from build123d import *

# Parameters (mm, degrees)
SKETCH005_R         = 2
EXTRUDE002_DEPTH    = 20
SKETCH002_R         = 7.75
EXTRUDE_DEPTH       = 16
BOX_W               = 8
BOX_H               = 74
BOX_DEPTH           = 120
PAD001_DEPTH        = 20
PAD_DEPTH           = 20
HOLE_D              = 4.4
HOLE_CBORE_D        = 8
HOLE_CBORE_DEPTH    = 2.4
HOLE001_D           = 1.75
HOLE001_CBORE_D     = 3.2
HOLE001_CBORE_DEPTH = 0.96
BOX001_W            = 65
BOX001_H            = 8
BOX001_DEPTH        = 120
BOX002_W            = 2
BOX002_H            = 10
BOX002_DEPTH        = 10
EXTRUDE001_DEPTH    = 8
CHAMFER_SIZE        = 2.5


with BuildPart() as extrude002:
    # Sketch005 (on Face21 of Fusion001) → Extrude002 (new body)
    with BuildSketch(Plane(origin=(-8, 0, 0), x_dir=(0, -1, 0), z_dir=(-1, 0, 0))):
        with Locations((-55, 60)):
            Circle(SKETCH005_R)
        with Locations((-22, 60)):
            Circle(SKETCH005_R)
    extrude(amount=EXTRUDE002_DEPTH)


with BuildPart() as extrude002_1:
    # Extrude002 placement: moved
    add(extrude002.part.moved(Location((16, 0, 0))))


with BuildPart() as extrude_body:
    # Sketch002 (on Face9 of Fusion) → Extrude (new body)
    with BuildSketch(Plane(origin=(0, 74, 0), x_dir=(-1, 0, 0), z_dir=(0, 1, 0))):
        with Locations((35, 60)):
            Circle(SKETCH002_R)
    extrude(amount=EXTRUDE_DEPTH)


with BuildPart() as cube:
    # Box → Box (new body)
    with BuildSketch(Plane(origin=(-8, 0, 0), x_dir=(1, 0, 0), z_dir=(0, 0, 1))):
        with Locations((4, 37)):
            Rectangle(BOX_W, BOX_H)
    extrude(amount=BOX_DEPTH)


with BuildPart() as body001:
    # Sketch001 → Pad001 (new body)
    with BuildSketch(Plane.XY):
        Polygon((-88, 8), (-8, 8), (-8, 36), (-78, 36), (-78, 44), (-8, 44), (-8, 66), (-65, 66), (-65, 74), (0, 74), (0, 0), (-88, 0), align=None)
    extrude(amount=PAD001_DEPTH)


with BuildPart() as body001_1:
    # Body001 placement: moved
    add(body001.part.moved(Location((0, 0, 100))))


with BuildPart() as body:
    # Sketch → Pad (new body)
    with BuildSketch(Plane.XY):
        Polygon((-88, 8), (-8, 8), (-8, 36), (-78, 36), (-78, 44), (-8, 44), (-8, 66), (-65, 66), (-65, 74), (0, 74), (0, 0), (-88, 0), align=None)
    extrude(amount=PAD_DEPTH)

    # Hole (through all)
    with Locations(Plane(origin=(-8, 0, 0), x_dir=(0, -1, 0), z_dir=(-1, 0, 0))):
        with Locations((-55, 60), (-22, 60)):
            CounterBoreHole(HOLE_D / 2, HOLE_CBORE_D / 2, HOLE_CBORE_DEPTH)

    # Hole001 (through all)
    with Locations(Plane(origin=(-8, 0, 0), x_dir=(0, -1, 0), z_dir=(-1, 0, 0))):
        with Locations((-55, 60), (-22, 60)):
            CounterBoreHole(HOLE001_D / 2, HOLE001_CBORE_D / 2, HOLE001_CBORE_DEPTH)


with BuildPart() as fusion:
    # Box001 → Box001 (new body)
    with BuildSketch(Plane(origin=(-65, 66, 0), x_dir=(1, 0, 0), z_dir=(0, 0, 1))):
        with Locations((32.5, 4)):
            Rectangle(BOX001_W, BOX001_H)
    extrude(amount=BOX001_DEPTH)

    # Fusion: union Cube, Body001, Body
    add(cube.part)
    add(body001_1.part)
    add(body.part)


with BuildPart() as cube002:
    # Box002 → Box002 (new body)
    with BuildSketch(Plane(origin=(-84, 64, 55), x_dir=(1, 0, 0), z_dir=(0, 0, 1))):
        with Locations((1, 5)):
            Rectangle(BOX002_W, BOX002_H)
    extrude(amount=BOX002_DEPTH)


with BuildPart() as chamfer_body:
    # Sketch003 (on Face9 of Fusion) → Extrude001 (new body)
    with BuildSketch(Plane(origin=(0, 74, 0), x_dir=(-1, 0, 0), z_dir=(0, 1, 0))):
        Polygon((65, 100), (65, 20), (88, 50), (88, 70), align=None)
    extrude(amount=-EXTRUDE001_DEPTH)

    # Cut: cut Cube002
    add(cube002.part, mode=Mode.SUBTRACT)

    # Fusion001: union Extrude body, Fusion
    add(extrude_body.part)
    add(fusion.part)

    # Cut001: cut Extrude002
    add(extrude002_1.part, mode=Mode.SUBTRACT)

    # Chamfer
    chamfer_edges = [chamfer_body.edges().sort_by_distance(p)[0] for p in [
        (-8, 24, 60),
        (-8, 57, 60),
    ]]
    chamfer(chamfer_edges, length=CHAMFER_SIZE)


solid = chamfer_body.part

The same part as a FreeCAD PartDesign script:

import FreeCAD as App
import Part
import Sketcher

V = App.Vector


def edges_at(feature, points):
    """Names of the edges that pass closest to the given points."""
    edges = feature.Shape.Edges
    near = lambda p: min(range(len(edges)), key=lambda i: edges[i].distToShape(Part.Vertex(*p))[0])
    return sorted({f"Edge{near(p) + 1}" for p in points})

doc = App.newDocument("Part")
body = doc.addObject("PartDesign::Body", "Body")
body.AllowCompound = True

sketch1 = body.newObject("Sketcher::SketchObject", "Sketch")
sketch1.AttachmentSupport = (doc.getObject("YZ_Plane"), [""])
sketch1.MapMode = "FlatFace"
sketch1.AttachmentOffset = App.Placement(V(0, 0, -8), App.Rotation())
sketch1.addGeometry(Part.Circle(V(55, 60, 0), V(0, 0, 1), 2), False)
sketch1.addGeometry(Part.Circle(V(22, 60, 0), V(0, 0, 1), 2), False)
sketch1.addConstraint(Sketcher.Constraint("Equal", 0, 1))
sketch1.addConstraint(Sketcher.Constraint("Horizontal", 0, 3, 1, 3))
sketch1.addConstraint(Sketcher.Constraint("Diameter", 0, 4.0))
sketch1.addConstraint(Sketcher.Constraint("DistanceX", -1, 1, 0, 3, 55.0))
sketch1.addConstraint(Sketcher.Constraint("DistanceY", -1, 1, 0, 3, 60.0))
sketch1.addConstraint(Sketcher.Constraint("DistanceX", -1, 1, 1, 3, 22.0))
pad1 = body.newObject("PartDesign::Pad", "Pad")
pad1.Profile = sketch1
pad1.Length = 20
pad1.Reversed = True
body2 = doc.addObject("PartDesign::Body", "Body001")
body2.AllowCompound = True
doc.recompute()

body.Placement = App.Placement(V(16, 0, 0), App.Rotation(V(0, 0, 1), 0))
boolean = body2.newObject("PartDesign::Boolean", "Boolean")
boolean.Type = "Fuse"
boolean.addObjects([body])
body3 = doc.addObject("PartDesign::Body", "Body002")

sketch2 = body3.newObject("Sketcher::SketchObject", "Sketch001")
sketch2.AttachmentSupport = (doc.getObject("XZ_Plane002"), [""])
sketch2.MapMode = "FlatFace"
sketch2.AttachmentOffset = App.Placement(V(0, 0, -74), App.Rotation())
sketch2.addGeometry(Part.Circle(V(-35, 60, 0), V(0, 0, 1), 8), False)
sketch2.addConstraint(Sketcher.Constraint("Diameter", 0, 15.5))
sketch2.addConstraint(Sketcher.Constraint("DistanceX", 0, 3, -1, 1, 35.0))
sketch2.addConstraint(Sketcher.Constraint("DistanceY", -1, 1, 0, 3, 60.0))
pad2 = body3.newObject("PartDesign::Pad", "Pad001")
pad2.Profile = sketch2
pad2.Length = 16
pad2.Reversed = True
body4 = doc.addObject("PartDesign::Body", "Body003")

sketch3 = body4.newObject("Sketcher::SketchObject", "Sketch002")
sketch3.AttachmentSupport = (doc.getObject("XY_Plane003"), [""])
sketch3.MapMode = "FlatFace"
sketch3.addGeometry(Part.LineSegment(V(-8, 74, 0), V(-8, 0, 0)), False)
sketch3.addGeometry(Part.LineSegment(V(-8, 0, 0), V(0, 0, 0)), False)
sketch3.addGeometry(Part.LineSegment(V(0, 0, 0), V(0, 74, 0)), False)
sketch3.addGeometry(Part.LineSegment(V(0, 74, 0), V(-8, 74, 0)), False)
sketch3.addConstraint(Sketcher.Constraint("Coincident", 0, 2, 1, 1))
sketch3.addConstraint(Sketcher.Constraint("Coincident", 1, 2, 2, 1))
sketch3.addConstraint(Sketcher.Constraint("Coincident", 2, 2, 3, 1))
sketch3.addConstraint(Sketcher.Constraint("Coincident", 3, 2, 0, 1))
sketch3.addConstraint(Sketcher.Constraint("Vertical", 0))
sketch3.addConstraint(Sketcher.Constraint("Horizontal", 1))
sketch3.addConstraint(Sketcher.Constraint("Vertical", 2))
sketch3.addConstraint(Sketcher.Constraint("Horizontal", 3))
sketch3.addConstraint(Sketcher.Constraint("Coincident", 1, 2, -1, 1))
sketch3.addConstraint(Sketcher.Constraint("DistanceX", 1, 1, 1, 2, 8.0))
sketch3.addConstraint(Sketcher.Constraint("DistanceY", 0, 2, 0, 1, 74.0))
pad3 = body4.newObject("PartDesign::Pad", "Pad002")
pad3.Profile = sketch3
pad3.Length = 120
body5 = doc.addObject("PartDesign::Body", "Body004")

sketch4 = body5.newObject("Sketcher::SketchObject", "Sketch003")
sketch4.AttachmentSupport = (doc.getObject("XY_Plane004"), [""])
sketch4.MapMode = "FlatFace"
sketch4.addGeometry(Part.LineSegment(V(-8, 8, 0), V(-88, 8, 0)), False)
sketch4.addGeometry(Part.LineSegment(V(-88, 8, 0), V(-88, 0, 0)), False)
sketch4.addGeometry(Part.LineSegment(V(-88, 0, 0), V(0, 0, 0)), False)
sketch4.addGeometry(Part.LineSegment(V(0, 0, 0), V(0, 74, 0)), False)
sketch4.addGeometry(Part.LineSegment(V(0, 74, 0), V(-65, 74, 0)), False)
sketch4.addGeometry(Part.LineSegment(V(-65, 74, 0), V(-65, 66, 0)), False)
sketch4.addGeometry(Part.LineSegment(V(-65, 66, 0), V(-8, 66, 0)), False)
sketch4.addGeometry(Part.LineSegment(V(-8, 66, 0), V(-8, 44, 0)), False)
sketch4.addGeometry(Part.LineSegment(V(-8, 44, 0), V(-78, 44, 0)), False)
sketch4.addGeometry(Part.LineSegment(V(-78, 44, 0), V(-78, 36, 0)), False)
sketch4.addGeometry(Part.LineSegment(V(-78, 36, 0), V(-8, 36, 0)), False)
sketch4.addGeometry(Part.LineSegment(V(-8, 36, 0), V(-8, 8, 0)), False)
sketch4.addConstraint(Sketcher.Constraint("Coincident", 0, 2, 1, 1))
sketch4.addConstraint(Sketcher.Constraint("Coincident", 1, 2, 2, 1))
sketch4.addConstraint(Sketcher.Constraint("Coincident", 2, 2, 3, 1))
sketch4.addConstraint(Sketcher.Constraint("Coincident", 3, 2, 4, 1))
sketch4.addConstraint(Sketcher.Constraint("Coincident", 4, 2, 5, 1))
sketch4.addConstraint(Sketcher.Constraint("Coincident", 5, 2, 6, 1))
sketch4.addConstraint(Sketcher.Constraint("Coincident", 6, 2, 7, 1))
sketch4.addConstraint(Sketcher.Constraint("Coincident", 7, 2, 8, 1))
sketch4.addConstraint(Sketcher.Constraint("Coincident", 8, 2, 9, 1))
sketch4.addConstraint(Sketcher.Constraint("Coincident", 9, 2, 10, 1))
sketch4.addConstraint(Sketcher.Constraint("Coincident", 10, 2, 11, 1))
sketch4.addConstraint(Sketcher.Constraint("Coincident", 11, 2, 0, 1))
sketch4.addConstraint(Sketcher.Constraint("Horizontal", 0))
sketch4.addConstraint(Sketcher.Constraint("Vertical", 1))
sketch4.addConstraint(Sketcher.Constraint("Horizontal", 2))
sketch4.addConstraint(Sketcher.Constraint("Vertical", 3))
sketch4.addConstraint(Sketcher.Constraint("Horizontal", 4))
sketch4.addConstraint(Sketcher.Constraint("Vertical", 5))
sketch4.addConstraint(Sketcher.Constraint("Horizontal", 6))
sketch4.addConstraint(Sketcher.Constraint("Vertical", 7))
sketch4.addConstraint(Sketcher.Constraint("Horizontal", 8))
sketch4.addConstraint(Sketcher.Constraint("Vertical", 9))
sketch4.addConstraint(Sketcher.Constraint("Horizontal", 10))
sketch4.addConstraint(Sketcher.Constraint("Vertical", 11))
sketch4.addConstraint(Sketcher.Constraint("Coincident", 2, 2, -1, 1))
sketch4.addConstraint(Sketcher.Constraint("Vertical", 7, 2, 10, 2))
sketch4.addConstraint(Sketcher.Constraint("Equal", 1, 5))
sketch4.addConstraint(Sketcher.Constraint("Equal", 5, 9))
sketch4.addConstraint(Sketcher.Constraint("DistanceX", 0, 2, 0, 1, 80.0))
sketch4.addConstraint(Sketcher.Constraint("DistanceX", 2, 1, 2, 2, 88.0))
sketch4.addConstraint(Sketcher.Constraint("DistanceX", 4, 2, 4, 1, 65.0))
sketch4.addConstraint(Sketcher.Constraint("DistanceX", 8, 2, 8, 1, 70.0))
sketch4.addConstraint(Sketcher.Constraint("DistanceY", 1, 2, 1, 1, 8.0))
sketch4.addConstraint(Sketcher.Constraint("DistanceY", 3, 1, 3, 2, 74.0))
sketch4.addConstraint(Sketcher.Constraint("DistanceY", 7, 2, 7, 1, 22.0))
pad4 = body5.newObject("PartDesign::Pad", "Pad003")
pad4.Profile = sketch4
pad4.Length = 20
body6 = doc.addObject("PartDesign::Body", "Body005")
doc.recompute()

body5.Placement = App.Placement(V(0, 0, 100), App.Rotation(V(0, 0, 1), 0))
boolean2 = body6.newObject("PartDesign::Boolean", "Boolean001")
boolean2.Type = "Fuse"
boolean2.addObjects([body5])
body7 = doc.addObject("PartDesign::Body", "Body006")

sketch5 = body7.newObject("Sketcher::SketchObject", "Sketch004")
sketch5.AttachmentSupport = (doc.getObject("XY_Plane006"), [""])
sketch5.MapMode = "FlatFace"
sketch5.addGeometry(Part.LineSegment(V(-8, 8, 0), V(-88, 8, 0)), False)
sketch5.addGeometry(Part.LineSegment(V(-88, 8, 0), V(-88, 0, 0)), False)
sketch5.addGeometry(Part.LineSegment(V(-88, 0, 0), V(0, 0, 0)), False)
sketch5.addGeometry(Part.LineSegment(V(0, 0, 0), V(0, 74, 0)), False)
sketch5.addGeometry(Part.LineSegment(V(0, 74, 0), V(-65, 74, 0)), False)
sketch5.addGeometry(Part.LineSegment(V(-65, 74, 0), V(-65, 66, 0)), False)
sketch5.addGeometry(Part.LineSegment(V(-65, 66, 0), V(-8, 66, 0)), False)
sketch5.addGeometry(Part.LineSegment(V(-8, 66, 0), V(-8, 44, 0)), False)
sketch5.addGeometry(Part.LineSegment(V(-8, 44, 0), V(-78, 44, 0)), False)
sketch5.addGeometry(Part.LineSegment(V(-78, 44, 0), V(-78, 36, 0)), False)
sketch5.addGeometry(Part.LineSegment(V(-78, 36, 0), V(-8, 36, 0)), False)
sketch5.addGeometry(Part.LineSegment(V(-8, 36, 0), V(-8, 8, 0)), False)
sketch5.addConstraint(Sketcher.Constraint("Coincident", 0, 2, 1, 1))
sketch5.addConstraint(Sketcher.Constraint("Coincident", 1, 2, 2, 1))
sketch5.addConstraint(Sketcher.Constraint("Coincident", 2, 2, 3, 1))
sketch5.addConstraint(Sketcher.Constraint("Coincident", 3, 2, 4, 1))
sketch5.addConstraint(Sketcher.Constraint("Coincident", 4, 2, 5, 1))
sketch5.addConstraint(Sketcher.Constraint("Coincident", 5, 2, 6, 1))
sketch5.addConstraint(Sketcher.Constraint("Coincident", 6, 2, 7, 1))
sketch5.addConstraint(Sketcher.Constraint("Coincident", 7, 2, 8, 1))
sketch5.addConstraint(Sketcher.Constraint("Coincident", 8, 2, 9, 1))
sketch5.addConstraint(Sketcher.Constraint("Coincident", 9, 2, 10, 1))
sketch5.addConstraint(Sketcher.Constraint("Coincident", 10, 2, 11, 1))
sketch5.addConstraint(Sketcher.Constraint("Coincident", 11, 2, 0, 1))
sketch5.addConstraint(Sketcher.Constraint("Horizontal", 0))
sketch5.addConstraint(Sketcher.Constraint("Vertical", 1))
sketch5.addConstraint(Sketcher.Constraint("Horizontal", 2))
sketch5.addConstraint(Sketcher.Constraint("Vertical", 3))
sketch5.addConstraint(Sketcher.Constraint("Horizontal", 4))
sketch5.addConstraint(Sketcher.Constraint("Vertical", 5))
sketch5.addConstraint(Sketcher.Constraint("Horizontal", 6))
sketch5.addConstraint(Sketcher.Constraint("Vertical", 7))
sketch5.addConstraint(Sketcher.Constraint("Horizontal", 8))
sketch5.addConstraint(Sketcher.Constraint("Vertical", 9))
sketch5.addConstraint(Sketcher.Constraint("Horizontal", 10))
sketch5.addConstraint(Sketcher.Constraint("Vertical", 11))
sketch5.addConstraint(Sketcher.Constraint("Coincident", 2, 2, -1, 1))
sketch5.addConstraint(Sketcher.Constraint("Vertical", 7, 2, 10, 2))
sketch5.addConstraint(Sketcher.Constraint("Equal", 1, 5))
sketch5.addConstraint(Sketcher.Constraint("Equal", 5, 9))
sketch5.addConstraint(Sketcher.Constraint("DistanceX", 0, 2, 0, 1, 80.0))
sketch5.addConstraint(Sketcher.Constraint("DistanceX", 2, 1, 2, 2, 88.0))
sketch5.addConstraint(Sketcher.Constraint("DistanceX", 4, 2, 4, 1, 65.0))
sketch5.addConstraint(Sketcher.Constraint("DistanceX", 8, 2, 8, 1, 70.0))
sketch5.addConstraint(Sketcher.Constraint("DistanceY", 1, 2, 1, 1, 8.0))
sketch5.addConstraint(Sketcher.Constraint("DistanceY", 3, 1, 3, 2, 74.0))
sketch5.addConstraint(Sketcher.Constraint("DistanceY", 7, 2, 7, 1, 22.0))
pad5 = body7.newObject("PartDesign::Pad", "Pad004")
pad5.Profile = sketch5
pad5.Length = 20

sketch6 = body7.newObject("Sketcher::SketchObject", "Sketch005")
sketch6.AttachmentSupport = (doc.getObject("YZ_Plane006"), [""])
sketch6.MapMode = "FlatFace"
sketch6.AttachmentOffset = App.Placement(V(0, 0, -8), App.Rotation())
sketch6.addGeometry(Part.Circle(V(55, 60, 0), V(0, 0, 1), 2.2), False)
sketch6.addGeometry(Part.Circle(V(22, 60, 0), V(0, 0, 1), 2.2), False)
sketch6.addConstraint(Sketcher.Constraint("Equal", 0, 1))
sketch6.addConstraint(Sketcher.Constraint("Horizontal", 0, 3, 1, 3))
sketch6.addConstraint(Sketcher.Constraint("Diameter", 0, 4.4))
sketch6.addConstraint(Sketcher.Constraint("DistanceX", -1, 1, 0, 3, 55.0))
sketch6.addConstraint(Sketcher.Constraint("DistanceY", -1, 1, 0, 3, 60.0))
sketch6.addConstraint(Sketcher.Constraint("DistanceX", -1, 1, 1, 3, 22.0))
doc.recompute()
hole = body7.newObject("PartDesign::Hole", "Hole")
hole.Profile = sketch6
hole.ThreadType = "None"
hole.Diameter = 4.4
hole.DepthType = "ThroughAll"
hole.HoleCutType = "Counterbore"
hole.HoleCutDiameter = 8
hole.HoleCutDepth = 2.4
hole.Reversed = True

sketch7 = body7.newObject("Sketcher::SketchObject", "Sketch006")
sketch7.AttachmentSupport = (doc.getObject("YZ_Plane006"), [""])
sketch7.MapMode = "FlatFace"
sketch7.AttachmentOffset = App.Placement(V(0, 0, -8), App.Rotation())
sketch7.addGeometry(Part.Circle(V(55, 60, 0), V(0, 0, 1), 0.9), False)
sketch7.addGeometry(Part.Circle(V(22, 60, 0), V(0, 0, 1), 0.9), False)
sketch7.addConstraint(Sketcher.Constraint("Equal", 0, 1))
sketch7.addConstraint(Sketcher.Constraint("Horizontal", 0, 3, 1, 3))
sketch7.addConstraint(Sketcher.Constraint("Diameter", 0, 1.75))
sketch7.addConstraint(Sketcher.Constraint("DistanceX", -1, 1, 0, 3, 55.0))
sketch7.addConstraint(Sketcher.Constraint("DistanceY", -1, 1, 0, 3, 60.0))
sketch7.addConstraint(Sketcher.Constraint("DistanceX", -1, 1, 1, 3, 22.0))
doc.recompute()
hole2 = body7.newObject("PartDesign::Hole", "Hole001")
hole2.Profile = sketch7
hole2.ThreadType = "None"
hole2.Diameter = 1.75
hole2.DepthType = "ThroughAll"
hole2.HoleCutType = "Counterbore"
hole2.HoleCutDiameter = 3.2
hole2.HoleCutDepth = 0.96
hole2.Reversed = True
body8 = doc.addObject("PartDesign::Body", "Body007")

sketch8 = body8.newObject("Sketcher::SketchObject", "Sketch007")
sketch8.AttachmentSupport = (doc.getObject("XY_Plane007"), [""])
sketch8.MapMode = "FlatFace"
sketch8.addGeometry(Part.LineSegment(V(-65, 74, 0), V(-65, 66, 0)), False)
sketch8.addGeometry(Part.LineSegment(V(-65, 66, 0), V(0, 66, 0)), False)
sketch8.addGeometry(Part.LineSegment(V(0, 66, 0), V(0, 74, 0)), False)
sketch8.addGeometry(Part.LineSegment(V(0, 74, 0), V(-65, 74, 0)), False)
sketch8.addConstraint(Sketcher.Constraint("Coincident", 0, 2, 1, 1))
sketch8.addConstraint(Sketcher.Constraint("Coincident", 1, 2, 2, 1))
sketch8.addConstraint(Sketcher.Constraint("Coincident", 2, 2, 3, 1))
sketch8.addConstraint(Sketcher.Constraint("Coincident", 3, 2, 0, 1))
sketch8.addConstraint(Sketcher.Constraint("Vertical", 0))
sketch8.addConstraint(Sketcher.Constraint("Horizontal", 1))
sketch8.addConstraint(Sketcher.Constraint("Vertical", 2))
sketch8.addConstraint(Sketcher.Constraint("Horizontal", 3))
sketch8.addConstraint(Sketcher.Constraint("PointOnObject", 1, 2, -2))
sketch8.addConstraint(Sketcher.Constraint("DistanceX", 1, 1, 1, 2, 65.0))
sketch8.addConstraint(Sketcher.Constraint("DistanceY", 0, 2, 0, 1, 8.0))
sketch8.addConstraint(Sketcher.Constraint("DistanceY", -1, 1, 0, 2, 66.0))
pad6 = body8.newObject("PartDesign::Pad", "Pad005")
pad6.Profile = sketch8
pad6.Length = 120
doc.recompute()

boolean3 = body8.newObject("PartDesign::Boolean", "Boolean002")
boolean3.Type = "Fuse"
boolean3.addObjects([body4])
doc.recompute()

boolean4 = body8.newObject("PartDesign::Boolean", "Boolean003")
boolean4.Type = "Fuse"
boolean4.addObjects([body6])
doc.recompute()

boolean5 = body8.newObject("PartDesign::Boolean", "Boolean004")
boolean5.Type = "Fuse"
boolean5.addObjects([body7])
body9 = doc.addObject("PartDesign::Body", "Body008")

sketch9 = body9.newObject("Sketcher::SketchObject", "Sketch008")
sketch9.AttachmentSupport = (doc.getObject("XY_Plane008"), [""])
sketch9.MapMode = "FlatFace"
sketch9.AttachmentOffset = App.Placement(V(0, 0, 55), App.Rotation())
sketch9.addGeometry(Part.LineSegment(V(-84, 74, 0), V(-84, 64, 0)), False)
sketch9.addGeometry(Part.LineSegment(V(-84, 64, 0), V(-82, 64, 0)), False)
sketch9.addGeometry(Part.LineSegment(V(-82, 64, 0), V(-82, 74, 0)), False)
sketch9.addGeometry(Part.LineSegment(V(-82, 74, 0), V(-84, 74, 0)), False)
sketch9.addConstraint(Sketcher.Constraint("Coincident", 0, 2, 1, 1))
sketch9.addConstraint(Sketcher.Constraint("Coincident", 1, 2, 2, 1))
sketch9.addConstraint(Sketcher.Constraint("Coincident", 2, 2, 3, 1))
sketch9.addConstraint(Sketcher.Constraint("Coincident", 3, 2, 0, 1))
sketch9.addConstraint(Sketcher.Constraint("Vertical", 0))
sketch9.addConstraint(Sketcher.Constraint("Horizontal", 1))
sketch9.addConstraint(Sketcher.Constraint("Vertical", 2))
sketch9.addConstraint(Sketcher.Constraint("Horizontal", 3))
sketch9.addConstraint(Sketcher.Constraint("DistanceX", 1, 1, 1, 2, 2.0))
sketch9.addConstraint(Sketcher.Constraint("DistanceY", 0, 2, 0, 1, 10.0))
sketch9.addConstraint(Sketcher.Constraint("DistanceX", 0, 2, -1, 1, 84.0))
sketch9.addConstraint(Sketcher.Constraint("DistanceY", -1, 1, 0, 2, 64.0))
pad7 = body9.newObject("PartDesign::Pad", "Pad006")
pad7.Profile = sketch9
pad7.Length = 10
body10 = doc.addObject("PartDesign::Body", "Body009")
body10.AllowCompound = True

sketch10 = body10.newObject("Sketcher::SketchObject", "Sketch009")
sketch10.AttachmentSupport = (doc.getObject("XZ_Plane009"), [""])
sketch10.MapMode = "FlatFace"
sketch10.AttachmentOffset = App.Placement(V(0, 0, -74), App.Rotation())
sketch10.addGeometry(Part.LineSegment(V(-65, 100, 0), V(-65, 20, 0)), False)
sketch10.addGeometry(Part.LineSegment(V(-65, 20, 0), V(-88, 50, 0)), False)
sketch10.addGeometry(Part.LineSegment(V(-88, 50, 0), V(-88, 70, 0)), False)
sketch10.addGeometry(Part.LineSegment(V(-88, 70, 0), V(-65, 100, 0)), False)
sketch10.addConstraint(Sketcher.Constraint("Coincident", 0, 2, 1, 1))
sketch10.addConstraint(Sketcher.Constraint("Coincident", 1, 2, 2, 1))
sketch10.addConstraint(Sketcher.Constraint("Coincident", 2, 2, 3, 1))
sketch10.addConstraint(Sketcher.Constraint("Coincident", 3, 2, 0, 1))
sketch10.addConstraint(Sketcher.Constraint("Vertical", 0))
sketch10.addConstraint(Sketcher.Constraint("Vertical", 2))
sketch10.addConstraint(Sketcher.Constraint("Equal", 1, 3))
sketch10.addConstraint(Sketcher.Constraint("DistanceY", 0, 2, 0, 1, 80.0))
sketch10.addConstraint(Sketcher.Constraint("DistanceY", 2, 1, 2, 2, 20.0))
sketch10.addConstraint(Sketcher.Constraint("DistanceX", 0, 2, -1, 1, 65.0))
sketch10.addConstraint(Sketcher.Constraint("DistanceY", -1, 1, 0, 2, 20.0))
sketch10.addConstraint(Sketcher.Constraint("DistanceX", 1, 2, -1, 1, 88.0))
pad8 = body10.newObject("PartDesign::Pad", "Pad007")
pad8.Profile = sketch10
pad8.Length = 8
doc.recompute()

boolean6 = body10.newObject("PartDesign::Boolean", "Boolean005")
boolean6.Type = "Cut"
boolean6.addObjects([body9])
doc.recompute()

boolean7 = body10.newObject("PartDesign::Boolean", "Boolean006")
boolean7.Type = "Fuse"
boolean7.addObjects([body3])
doc.recompute()

boolean8 = body10.newObject("PartDesign::Boolean", "Boolean007")
boolean8.Type = "Fuse"
boolean8.addObjects([body8])
doc.recompute()

boolean9 = body10.newObject("PartDesign::Boolean", "Boolean008")
boolean9.Type = "Cut"
boolean9.addObjects([body2])
doc.recompute()

chamfer = body10.newObject("PartDesign::Chamfer", "Chamfer")
chamfer.Base = (boolean9, edges_at(boolean9, [(-8, 24, 60), (-8, 57, 60)]))
chamfer.Size = 2.5

doc.recompute()
